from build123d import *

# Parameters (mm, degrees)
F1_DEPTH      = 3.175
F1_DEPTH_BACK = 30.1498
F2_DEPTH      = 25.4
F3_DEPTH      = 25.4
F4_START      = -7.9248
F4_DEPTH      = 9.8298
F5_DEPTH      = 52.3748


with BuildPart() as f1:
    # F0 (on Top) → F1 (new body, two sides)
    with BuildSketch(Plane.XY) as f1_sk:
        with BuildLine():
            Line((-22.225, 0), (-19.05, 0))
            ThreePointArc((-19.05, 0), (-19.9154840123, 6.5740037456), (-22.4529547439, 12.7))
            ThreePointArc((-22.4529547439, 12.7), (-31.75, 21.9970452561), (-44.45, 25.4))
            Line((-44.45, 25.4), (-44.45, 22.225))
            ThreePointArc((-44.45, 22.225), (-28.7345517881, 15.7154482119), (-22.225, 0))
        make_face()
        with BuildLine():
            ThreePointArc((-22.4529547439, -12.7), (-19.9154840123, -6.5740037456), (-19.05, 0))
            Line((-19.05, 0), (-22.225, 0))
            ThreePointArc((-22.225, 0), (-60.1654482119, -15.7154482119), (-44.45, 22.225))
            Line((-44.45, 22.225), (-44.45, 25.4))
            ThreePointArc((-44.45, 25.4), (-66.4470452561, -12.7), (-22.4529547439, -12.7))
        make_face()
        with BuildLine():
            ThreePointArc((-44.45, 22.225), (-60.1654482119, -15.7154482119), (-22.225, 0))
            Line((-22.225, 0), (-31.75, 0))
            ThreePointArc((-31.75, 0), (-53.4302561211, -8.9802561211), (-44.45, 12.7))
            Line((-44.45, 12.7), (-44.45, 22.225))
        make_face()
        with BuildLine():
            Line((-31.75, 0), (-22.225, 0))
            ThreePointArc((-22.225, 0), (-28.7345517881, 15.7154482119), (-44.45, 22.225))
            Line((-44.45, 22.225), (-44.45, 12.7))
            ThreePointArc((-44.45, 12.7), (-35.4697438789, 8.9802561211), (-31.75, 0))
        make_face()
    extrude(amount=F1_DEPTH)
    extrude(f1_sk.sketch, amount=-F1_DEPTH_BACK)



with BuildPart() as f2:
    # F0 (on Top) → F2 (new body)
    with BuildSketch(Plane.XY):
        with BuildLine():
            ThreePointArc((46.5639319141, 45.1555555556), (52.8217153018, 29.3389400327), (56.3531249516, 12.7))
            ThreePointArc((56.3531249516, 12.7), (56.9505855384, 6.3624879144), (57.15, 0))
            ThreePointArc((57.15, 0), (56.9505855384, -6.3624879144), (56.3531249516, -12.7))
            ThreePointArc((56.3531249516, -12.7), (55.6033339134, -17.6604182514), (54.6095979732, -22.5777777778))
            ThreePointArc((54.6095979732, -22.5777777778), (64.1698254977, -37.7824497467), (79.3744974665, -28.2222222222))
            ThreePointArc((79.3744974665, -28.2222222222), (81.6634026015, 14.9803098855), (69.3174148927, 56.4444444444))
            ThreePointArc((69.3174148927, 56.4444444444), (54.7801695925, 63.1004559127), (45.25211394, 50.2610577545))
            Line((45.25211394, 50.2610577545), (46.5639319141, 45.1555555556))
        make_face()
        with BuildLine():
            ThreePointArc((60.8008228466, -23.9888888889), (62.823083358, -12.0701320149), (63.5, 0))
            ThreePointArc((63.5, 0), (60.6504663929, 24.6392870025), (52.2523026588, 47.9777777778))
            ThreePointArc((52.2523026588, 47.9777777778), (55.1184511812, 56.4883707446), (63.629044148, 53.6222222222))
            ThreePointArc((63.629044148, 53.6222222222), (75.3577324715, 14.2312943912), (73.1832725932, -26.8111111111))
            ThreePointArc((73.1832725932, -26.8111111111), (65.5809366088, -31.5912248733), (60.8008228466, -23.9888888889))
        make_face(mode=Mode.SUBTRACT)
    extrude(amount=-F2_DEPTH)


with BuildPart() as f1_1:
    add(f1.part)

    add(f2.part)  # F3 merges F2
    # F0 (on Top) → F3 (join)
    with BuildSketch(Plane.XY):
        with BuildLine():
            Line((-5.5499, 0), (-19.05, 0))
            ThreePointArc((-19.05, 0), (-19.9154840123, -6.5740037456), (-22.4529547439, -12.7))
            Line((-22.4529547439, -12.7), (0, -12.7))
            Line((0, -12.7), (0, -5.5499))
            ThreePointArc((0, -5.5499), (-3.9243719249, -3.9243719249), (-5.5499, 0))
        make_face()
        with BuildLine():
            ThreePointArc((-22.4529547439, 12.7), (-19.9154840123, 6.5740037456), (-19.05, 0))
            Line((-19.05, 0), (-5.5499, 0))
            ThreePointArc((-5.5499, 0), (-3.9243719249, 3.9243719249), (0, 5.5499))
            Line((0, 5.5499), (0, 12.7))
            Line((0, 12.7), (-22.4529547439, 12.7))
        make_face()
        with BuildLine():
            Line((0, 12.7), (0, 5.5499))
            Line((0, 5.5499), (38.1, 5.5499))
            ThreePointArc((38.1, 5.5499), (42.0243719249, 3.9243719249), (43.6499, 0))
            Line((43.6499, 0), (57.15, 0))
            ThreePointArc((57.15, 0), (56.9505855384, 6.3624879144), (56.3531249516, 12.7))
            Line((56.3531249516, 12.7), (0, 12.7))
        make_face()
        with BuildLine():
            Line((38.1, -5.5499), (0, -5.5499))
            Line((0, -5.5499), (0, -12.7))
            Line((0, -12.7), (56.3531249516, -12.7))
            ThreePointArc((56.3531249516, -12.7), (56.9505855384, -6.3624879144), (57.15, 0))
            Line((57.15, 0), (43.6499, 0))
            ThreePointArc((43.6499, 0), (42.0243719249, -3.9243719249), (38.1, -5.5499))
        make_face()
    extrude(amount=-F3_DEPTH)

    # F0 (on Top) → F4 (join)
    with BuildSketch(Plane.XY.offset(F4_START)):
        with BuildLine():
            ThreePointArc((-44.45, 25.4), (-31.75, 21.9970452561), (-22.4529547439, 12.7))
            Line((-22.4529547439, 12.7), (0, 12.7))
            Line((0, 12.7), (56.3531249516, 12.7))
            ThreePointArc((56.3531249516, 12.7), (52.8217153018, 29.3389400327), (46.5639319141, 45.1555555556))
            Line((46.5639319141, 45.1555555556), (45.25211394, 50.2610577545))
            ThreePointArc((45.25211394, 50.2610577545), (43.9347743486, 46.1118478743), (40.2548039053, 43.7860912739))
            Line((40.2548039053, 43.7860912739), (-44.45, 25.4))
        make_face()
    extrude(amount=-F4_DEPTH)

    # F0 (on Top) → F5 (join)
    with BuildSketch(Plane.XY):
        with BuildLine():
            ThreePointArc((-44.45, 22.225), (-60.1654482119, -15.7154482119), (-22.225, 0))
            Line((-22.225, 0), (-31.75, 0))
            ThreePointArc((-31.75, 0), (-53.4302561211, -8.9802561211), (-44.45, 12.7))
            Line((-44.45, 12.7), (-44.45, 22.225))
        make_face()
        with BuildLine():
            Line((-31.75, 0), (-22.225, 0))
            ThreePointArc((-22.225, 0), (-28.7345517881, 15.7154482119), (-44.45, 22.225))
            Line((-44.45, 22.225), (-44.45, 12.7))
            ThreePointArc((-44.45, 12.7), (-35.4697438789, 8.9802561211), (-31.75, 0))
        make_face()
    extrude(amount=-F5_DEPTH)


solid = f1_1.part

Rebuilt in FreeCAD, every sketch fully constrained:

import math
import FreeCAD as App
import Part
import Sketcher
Q = App.Units.Quantity

doc = App.newDocument("Part")
body = doc.addObject("PartDesign::Body", "Body")

sketch1 = doc.addObject("Sketcher::SketchObject", "Sketch")
body.addObject(sketch1)
sketch1.AttachmentSupport = (doc.XY_Plane, [""])
sketch1.MapMode = "FlatFace"
sketch1.addGeometry([
    Part.ArcOfCircle(Part.Circle(App.Vector(-44, 0, 0), App.Vector(0, 0, 1), 25), math.radians(0), math.radians(30)),
    Part.ArcOfCircle(Part.Circle(App.Vector(-44, 0, 0), App.Vector(0, 0, 1), 25), math.radians(30), math.radians(90)),
    Part.ArcOfCircle(Part.Circle(App.Vector(-44, 0, 0), App.Vector(0, 0, 1), 25), math.radians(90), math.radians(330)),
    Part.ArcOfCircle(Part.Circle(App.Vector(-44, 0, 0), App.Vector(0, 0, 1), 25), math.radians(-30), math.radians(0)),
    Part.ArcOfCircle(Part.Circle(App.Vector(-44, 0, 0), App.Vector(0, 0, 1), 13), math.radians(90), math.radians(360)),
    Part.ArcOfCircle(Part.Circle(App.Vector(-44, 0, 0), App.Vector(0, 0, 1), 13), math.radians(0), math.radians(90)),
], False)
sketch1.addConstraint([
    Sketcher.Constraint("Tangent", 0, 2, 1, 1),
    Sketcher.Constraint("Tangent", 1, 2, 2, 1),
    Sketcher.Constraint("Tangent", 2, 2, 3, 1),
    Sketcher.Constraint("Tangent", 3, 2, 0, 1),
    Sketcher.Constraint("Tangent", 4, 1, 5, 2),
    Sketcher.Constraint("Coincident", 5, 1, 4, 2),
    Sketcher.Constraint("Coincident", 4, 3, 0, 3),
    Sketcher.Constraint("Equal", 0, 1),
    Sketcher.Constraint("Symmetric", 0, 2, 2, 2, -1),
    Sketcher.Constraint("PointOnObject", 3, 2, -1),
    Sketcher.Constraint("PointOnObject", 5, 1, -1),
    Sketcher.Constraint("Horizontal", 0, 2, 4, 1),
    Sketcher.Constraint("Vertical", 5, 3, 1, 2),
    Sketcher.Constraint("Vertical", 1, 2, 4, 1),
    Sketcher.Constraint("Radius", 0, Q("1 in")),
    Sketcher.Constraint("Radius", 4, Q("0.5 in")),
    Sketcher.Constraint("DistanceX", 0, 3, -1, 1, Q("1.75 in")),
])
pad1 = doc.addObject("PartDesign::Pad", "Pad")
body.addObject(pad1)
pad1.Profile = sketch1
pad1.Type = "TwoLengths"
pad1.Length = Q("0.125 in")
pad1.Length2 = Q("1.187 in")
body2 = doc.addObject("PartDesign::Body", "Body001")

sketch2 = doc.addObject("Sketcher::SketchObject", "Sketch001")
body2.addObject(sketch2)
sketch2.AttachmentSupport = (doc.getObject("XY_Plane001"), [""])
sketch2.MapMode = "FlatFace"
sketch2.addGeometry([
    Part.ArcOfCircle(Part.Circle(App.Vector(-44, 0, 0), App.Vector(0, 0, 1), 102), math.radians(7.18), math.radians(26.39)),
    Part.ArcOfCircle(Part.Circle(App.Vector(-44, 0, 0), App.Vector(0, 0, 1), 102), math.radians(0), math.radians(7.18)),
    Part.ArcOfCircle(Part.Circle(App.Vector(-44, 0, 0), App.Vector(0, 0, 1), 102), math.radians(-7.18), math.radians(0)),
    Part.ArcOfCircle(Part.Circle(App.Vector(-44, 0, 0), App.Vector(0, 0, 1), 102), math.radians(-12.84), math.radians(-7.18)),
    Part.ArcOfCircle(Part.Circle(App.Vector(67, -25, 0), App.Vector(0, 0, 1), 13), math.radians(167), math.radians(347)),
    Part.ArcOfCircle(Part.Circle(App.Vector(-44, 0, 0), App.Vector(0, 0, 1), 127), math.radians(-13), math.radians(26)),
    Part.ArcOfCircle(Part.Circle(App.Vector(58, 51, 0), App.Vector(0, 0, 1), 13), math.radians(26), math.radians(182)),
    Part.LineSegment(App.Vector(45, 50, 0), App.Vector(47, 45, 0)),
    Part.ArcOfCircle(Part.Circle(App.Vector(67, -25, 0), App.Vector(0, 0, 1), 6), math.radians(167), math.radians(347)),
    Part.ArcOfCircle(Part.Circle(App.Vector(-44, 0, 0), App.Vector(0, 0, 1), 108), math.radians(-12.84), math.radians(0)),
    Part.ArcOfCircle(Part.Circle(App.Vector(-44, 0, 0), App.Vector(0, 0, 1), 108), math.radians(0), math.radians(26)),
    Part.ArcOfCircle(Part.Circle(App.Vector(58, 51, 0), App.Vector(0, 0, 1), 6), math.radians(26), math.radians(206)),
    Part.ArcOfCircle(Part.Circle(App.Vector(-44, 0, 0), App.Vector(0, 0, 1), 121), math.radians(-13), math.radians(26)),
], False)
sketch2.addConstraint([
    Sketcher.Constraint("Tangent", 0, 1, 1, 2),
    Sketcher.Constraint("Tangent", 1, 1, 2, 2),
    Sketcher.Constraint("Tangent", 2, 1, 3, 2),
    Sketcher.Constraint("Tangent", 3, 1, 4, 1),
    Sketcher.Constraint("Tangent", 4, 2, 5, 1),
    Sketcher.Constraint("Tangent", 5, 2, 6, 1),
    Sketcher.Constraint("Coincident", 6, 2, 7, 1),
    Sketcher.Constraint("Coincident", 7, 2, 0, 2),
    Sketcher.Constraint("Tangent", 8, 1, 9, 1),
    Sketcher.Constraint("Tangent", 9, 2, 10, 1),
    Sketcher.Constraint("Tangent", 10, 2, 11, 2),
    Sketcher.Constraint("Tangent", 11, 1, 12, 2),
    Sketcher.Constraint("Tangent", 12, 1, 8, 2),
    Sketcher.Constraint("Coincident", 2, 3, 0, 3),
    Sketcher.Constraint("Coincident", 5, 3, 0, 3),
    Sketcher.Constraint("Coincident", 8, 3, 4, 3),
    Sketcher.Constraint("Coincident", 9, 3, 0, 3),
    Sketcher.Constraint("Coincident", 11, 3, 6, 3),
    Sketcher.Constraint("Coincident", 12, 3, 0, 3),
    Sketcher.Constraint("Equal", 2, 3),
    Sketcher.Constraint("Equal", 4, 6),
    Sketcher.Constraint("Symmetric", 0, 1, 2, 1, -1),
    Sketcher.Constraint("PointOnObject", 1, 1, -1),
    Sketcher.Constraint("PointOnObject", 9, 2, -1),
    Sketcher.Constraint("Radius", 0, Q("4 in")),
    Sketcher.Constraint("Radius", 5, Q("5 in")),
    Sketcher.Constraint("Radius", 8, Q("0.25 in")),
    Sketcher.Constraint("DistanceY", 4, 3, -1, 1, Q("1 in")),
    Sketcher.Constraint("DistanceY", -1, 1, 6, 3, Q("2 in")),
    Sketcher.Constraint("DistanceY", 2, 1, 0, 1, Q("1 in")),
    Sketcher.Constraint("DistanceX", -1, 1, 9, 2, Q("2.5 in")),
    Sketcher.Constraint("Distance", 7, Q("5.271339 mm")),
    Sketcher.Constraint("DistanceX", -1, 1, 7, 2, Q("46.563932 mm")),
])
pad2 = doc.addObject("PartDesign::Pad", "Pad001")
body2.addObject(pad2)
pad2.Profile = sketch2
pad2.Length = Q("1 in")
pad2.Reversed = True
body.AllowCompound = True
doc.recompute()

boolean = doc.addObject("PartDesign::Boolean", "Boolean")
body.addObject(boolean)
boolean.Type = "Fuse"
boolean.addObjects([body2])

sketch3 = doc.addObject("Sketcher::SketchObject", "Sketch002")
body.addObject(sketch3)
sketch3.AttachmentSupport = (doc.XY_Plane, [""])
sketch3.MapMode = "FlatFace"
sketch3.addGeometry([
    Part.ArcOfCircle(Part.Circle(App.Vector(-44, 0, 0), App.Vector(0, 0, 1), 25), math.radians(-30), math.radians(0)),
    Part.LineSegment(App.Vector(-22, -13, 0), App.Vector(56, -13, 0)),
    Part.ArcOfCircle(Part.Circle(App.Vector(-44, 0, 0), App.Vector(0, 0, 1), 102), math.radians(-7.18), math.radians(0)),
    Part.ArcOfCircle(Part.Circle(App.Vector(-44, 0, 0), App.Vector(0, 0, 1), 102), math.radians(0), math.radians(7.18)),
    Part.LineSegment(App.Vector(56, 13, 0), App.Vector(-22, 13, 0)),
    Part.ArcOfCircle(Part.Circle(App.Vector(-44, 0, 0), App.Vector(0, 0, 1), 25), math.radians(0), math.radians(30)),
    Part.ArcOfCircle(Part.Circle(App.Vector(0, 0, 0), App.Vector(0, 0, 1), 6), math.radians(180), math.radians(270)),
    Part.ArcOfCircle(Part.Circle(App.Vector(0, 0, 0), App.Vector(0, 0, 1), 6), math.radians(90), math.radians(180)),
    Part.LineSegment(App.Vector(0, 6, 0), App.Vector(38, 6, 0)),
    Part.ArcOfCircle(Part.Circle(App.Vector(38, 0, 0), App.Vector(0, 0, 1), 6), math.radians(0), math.radians(90)),
    Part.ArcOfCircle(Part.Circle(App.Vector(38, 0, 0), App.Vector(0, 0, 1), 6), math.radians(-90), math.radians(0)),
    Part.LineSegment(App.Vector(38, -6, 0), App.Vector(0, -6, 0)),
], False)
sketch3.addConstraint([
    Sketcher.Constraint("Coincident", 0, 1, 1, 1),
    Sketcher.Constraint("Coincident", 1, 2, 2, 1),
    Sketcher.Constraint("Tangent", 2, 2, 3, 1),
    Sketcher.Constraint("Coincident", 3, 2, 4, 1),
    Sketcher.Constraint("Coincident", 4, 2, 5, 2),
    Sketcher.Constraint("Tangent", 5, 1, 0, 2),
    Sketcher.Constraint("Tangent", 6, 1, 7, 2),
    Sketcher.Constraint("Tangent", 7, 1, 8, 1),
    Sketcher.Constraint("Tangent", 8, 2, 9, 2),
    Sketcher.Constraint("Tangent", 9, 1, 10, 2),
    Sketcher.Constraint("Tangent", 10, 1, 11, 1),
    Sketcher.Constraint("Tangent", 11, 2, 6, 2),
    Sketcher.Constraint("Horizontal", 1),
    Sketcher.Constraint("Horizontal", 4),
    Sketcher.Constraint("Horizontal", 8),
    Sketcher.Constraint("Horizontal", 11),
    Sketcher.Constraint("Coincident", 6, 3, -1, 1),
    Sketcher.Constraint("Coincident", 2, 3, 0, 3),
    Sketcher.Constraint("Equal", 2, 3),
    Sketcher.Constraint("Equal", 0, 5),
    Sketcher.Constraint("Equal", 6, 7),
    Sketcher.Constraint("Equal", 7, 9),
    Sketcher.Constraint("Symmetric", 1, 2, 3, 2, -1),
    Sketcher.Constraint("PointOnObject", 2, 2, -1),
    Sketcher.Constraint("PointOnObject", 5, 1, -1),
    Sketcher.Constraint("PointOnObject", 6, 1, -1),
    Sketcher.Constraint("PointOnObject", 9, 1, -1),
    Sketcher.Constraint("Radius", 0, Q("1 in")),
    Sketcher.Constraint("Radius", 2, Q("4 in")),
    Sketcher.Constraint("DistanceX", 8, 1, 8, 2, Q("1.5 in")),
    Sketcher.Constraint("DistanceY", 1, 2, 3, 2, Q("1 in")),
    Sketcher.Constraint("Radius", 6, Q("0.2185 in")),
    Sketcher.Constraint("DistanceX", 0, 3, -1, 1, Q("1.75 in")),
])
pad3 = doc.addObject("PartDesign::Pad", "Pad002")
body.addObject(pad3)
pad3.Profile = sketch3
pad3.Length = Q("1 in")
pad3.Reversed = True

sketch4 = doc.addObject("Sketcher::SketchObject", "Sketch003")
body.addObject(sketch4)
sketch4.AttachmentSupport = (doc.XY_Plane, [""])
sketch4.MapMode = "FlatFace"
sketch4.AttachmentOffset = App.Placement(App.Vector(0, 0, -0.312 * 25.4), App.Rotation())
sketch4.addGeometry([
    Part.ArcOfCircle(Part.Circle(App.Vector(-44, 0, 0), App.Vector(0, 0, 1), 25), math.radians(30), math.radians(90)),
    Part.LineSegment(App.Vector(-22, 13, 0), App.Vector(56, 13, 0)),
    Part.ArcOfCircle(Part.Circle(App.Vector(-44, 0, 0), App.Vector(0, 0, 1), 102), math.radians(7.18), math.radians(26.39)),
    Part.LineSegment(App.Vector(47, 45, 0), App.Vector(45, 50, 0)),
    Part.ArcOfCircle(Part.Circle(App.Vector(39, 50, 0), App.Vector(0, 0, 1), 6), math.radians(-78), math.radians(2)),
    Part.LineSegment(App.Vector(40, 44, 0), App.Vector(-44, 25, 0)),
], False)
sketch4.addConstraint([
    Sketcher.Constraint("Coincident", 0, 1, 1, 1),
    Sketcher.Constraint("Coincident", 1, 2, 2, 1),
    Sketcher.Constraint("Coincident", 2, 2, 3, 1),
    Sketcher.Constraint("Coincident", 3, 2, 4, 2),
    Sketcher.Constraint("Tangent", 4, 1, 5, 1),
    Sketcher.Constraint("Coincident", 5, 2, 0, 2),
    Sketcher.Constraint("Horizontal", 1),
    Sketcher.Constraint("Coincident", 2, 3, 0, 3),
    Sketcher.Constraint("PointOnObject", 0, 3, -1),
    Sketcher.Constraint("Vertical", 2, 3, 5, 2),
    Sketcher.Constraint("Radius", 0, Q("1 in")),
    Sketcher.Constraint("Radius", 2, Q("4 in")),
    Sketcher.Constraint("Radius", 4, Q("0.25 in")),
    Sketcher.Constraint("DistanceY", -1, 1, 0, 1, Q("0.5 in")),
    Sketcher.Constraint("DistanceX", 0, 3, -1, 1, Q("1.75 in")),
    Sketcher.Constraint("Distance", 3, Q("5.271339 mm")),
    Sketcher.Constraint("DistanceX", -1, 1, 2, 2, Q("46.563932 mm")),
    Sketcher.Constraint("DistanceY", -1, 1, 4, 1, Q("43.786091 mm")),
    Sketcher.Constraint("DistanceX", 0, 1, 4, 3, Q("61.360789 mm")),
])
pad4 = doc.addObject("PartDesign::Pad", "Pad003")
body.addObject(pad4)
pad4.Profile = sketch4
pad4.Length = Q("0.387 in")
pad4.Reversed = True

sketch5 = doc.addObject("Sketcher::SketchObject", "Sketch004")
body.addObject(sketch5)
sketch5.AttachmentSupport = (doc.XY_Plane, [""])
sketch5.MapMode = "FlatFace"
sketch5.addGeometry([
    Part.ArcOfCircle(Part.Circle(App.Vector(-44, 0, 0), App.Vector(0, 0, 1), 22), math.radians(90), math.radians(360)),
    Part.ArcOfCircle(Part.Circle(App.Vector(-44, 0, 0), App.Vector(0, 0, 1), 22), math.radians(0), math.radians(90)),
    Part.ArcOfCircle(Part.Circle(App.Vector(-44, 0, 0), App.Vector(0, 0, 1), 13), math.radians(90), math.radians(360)),
    Part.ArcOfCircle(Part.Circle(App.Vector(-44, 0, 0), App.Vector(0, 0, 1), 13), math.radians(0), math.radians(90)),
], False)
sketch5.addConstraint([
    Sketcher.Constraint("Tangent", 0, 1, 1, 2),
    Sketcher.Constraint("Coincident", 1, 1, 0, 2),
    Sketcher.Constraint("Tangent", 2, 1, 3, 2),
    Sketcher.Constraint("Coincident", 3, 1, 2, 2),
    Sketcher.Constraint("Coincident", 2, 3, 0, 3),
    Sketcher.Constraint("PointOnObject", 0, 3, -1),
    Sketcher.Constraint("PointOnObject", 1, 1, -1),
    Sketcher.Constraint("PointOnObject", 3, 1, -1),
    Sketcher.Constraint("Vertical", 3, 3, 0, 1),
    Sketcher.Constraint("Vertical", 0, 1, 2, 1),
    Sketcher.Constraint("Radius", 2, Q("0.5 in")),
    Sketcher.Constraint("Radius", 0, Q("0.875 in")),
    Sketcher.Constraint("DistanceX", 0, 3, -1, 1, Q("1.75 in")),
])
pad5 = doc.addObject("PartDesign::Pad", "Pad004")
body.addObject(pad5)
pad5.Profile = sketch5
pad5.Length = Q("2.062 in")
pad5.Reversed = True

doc.recompute()
